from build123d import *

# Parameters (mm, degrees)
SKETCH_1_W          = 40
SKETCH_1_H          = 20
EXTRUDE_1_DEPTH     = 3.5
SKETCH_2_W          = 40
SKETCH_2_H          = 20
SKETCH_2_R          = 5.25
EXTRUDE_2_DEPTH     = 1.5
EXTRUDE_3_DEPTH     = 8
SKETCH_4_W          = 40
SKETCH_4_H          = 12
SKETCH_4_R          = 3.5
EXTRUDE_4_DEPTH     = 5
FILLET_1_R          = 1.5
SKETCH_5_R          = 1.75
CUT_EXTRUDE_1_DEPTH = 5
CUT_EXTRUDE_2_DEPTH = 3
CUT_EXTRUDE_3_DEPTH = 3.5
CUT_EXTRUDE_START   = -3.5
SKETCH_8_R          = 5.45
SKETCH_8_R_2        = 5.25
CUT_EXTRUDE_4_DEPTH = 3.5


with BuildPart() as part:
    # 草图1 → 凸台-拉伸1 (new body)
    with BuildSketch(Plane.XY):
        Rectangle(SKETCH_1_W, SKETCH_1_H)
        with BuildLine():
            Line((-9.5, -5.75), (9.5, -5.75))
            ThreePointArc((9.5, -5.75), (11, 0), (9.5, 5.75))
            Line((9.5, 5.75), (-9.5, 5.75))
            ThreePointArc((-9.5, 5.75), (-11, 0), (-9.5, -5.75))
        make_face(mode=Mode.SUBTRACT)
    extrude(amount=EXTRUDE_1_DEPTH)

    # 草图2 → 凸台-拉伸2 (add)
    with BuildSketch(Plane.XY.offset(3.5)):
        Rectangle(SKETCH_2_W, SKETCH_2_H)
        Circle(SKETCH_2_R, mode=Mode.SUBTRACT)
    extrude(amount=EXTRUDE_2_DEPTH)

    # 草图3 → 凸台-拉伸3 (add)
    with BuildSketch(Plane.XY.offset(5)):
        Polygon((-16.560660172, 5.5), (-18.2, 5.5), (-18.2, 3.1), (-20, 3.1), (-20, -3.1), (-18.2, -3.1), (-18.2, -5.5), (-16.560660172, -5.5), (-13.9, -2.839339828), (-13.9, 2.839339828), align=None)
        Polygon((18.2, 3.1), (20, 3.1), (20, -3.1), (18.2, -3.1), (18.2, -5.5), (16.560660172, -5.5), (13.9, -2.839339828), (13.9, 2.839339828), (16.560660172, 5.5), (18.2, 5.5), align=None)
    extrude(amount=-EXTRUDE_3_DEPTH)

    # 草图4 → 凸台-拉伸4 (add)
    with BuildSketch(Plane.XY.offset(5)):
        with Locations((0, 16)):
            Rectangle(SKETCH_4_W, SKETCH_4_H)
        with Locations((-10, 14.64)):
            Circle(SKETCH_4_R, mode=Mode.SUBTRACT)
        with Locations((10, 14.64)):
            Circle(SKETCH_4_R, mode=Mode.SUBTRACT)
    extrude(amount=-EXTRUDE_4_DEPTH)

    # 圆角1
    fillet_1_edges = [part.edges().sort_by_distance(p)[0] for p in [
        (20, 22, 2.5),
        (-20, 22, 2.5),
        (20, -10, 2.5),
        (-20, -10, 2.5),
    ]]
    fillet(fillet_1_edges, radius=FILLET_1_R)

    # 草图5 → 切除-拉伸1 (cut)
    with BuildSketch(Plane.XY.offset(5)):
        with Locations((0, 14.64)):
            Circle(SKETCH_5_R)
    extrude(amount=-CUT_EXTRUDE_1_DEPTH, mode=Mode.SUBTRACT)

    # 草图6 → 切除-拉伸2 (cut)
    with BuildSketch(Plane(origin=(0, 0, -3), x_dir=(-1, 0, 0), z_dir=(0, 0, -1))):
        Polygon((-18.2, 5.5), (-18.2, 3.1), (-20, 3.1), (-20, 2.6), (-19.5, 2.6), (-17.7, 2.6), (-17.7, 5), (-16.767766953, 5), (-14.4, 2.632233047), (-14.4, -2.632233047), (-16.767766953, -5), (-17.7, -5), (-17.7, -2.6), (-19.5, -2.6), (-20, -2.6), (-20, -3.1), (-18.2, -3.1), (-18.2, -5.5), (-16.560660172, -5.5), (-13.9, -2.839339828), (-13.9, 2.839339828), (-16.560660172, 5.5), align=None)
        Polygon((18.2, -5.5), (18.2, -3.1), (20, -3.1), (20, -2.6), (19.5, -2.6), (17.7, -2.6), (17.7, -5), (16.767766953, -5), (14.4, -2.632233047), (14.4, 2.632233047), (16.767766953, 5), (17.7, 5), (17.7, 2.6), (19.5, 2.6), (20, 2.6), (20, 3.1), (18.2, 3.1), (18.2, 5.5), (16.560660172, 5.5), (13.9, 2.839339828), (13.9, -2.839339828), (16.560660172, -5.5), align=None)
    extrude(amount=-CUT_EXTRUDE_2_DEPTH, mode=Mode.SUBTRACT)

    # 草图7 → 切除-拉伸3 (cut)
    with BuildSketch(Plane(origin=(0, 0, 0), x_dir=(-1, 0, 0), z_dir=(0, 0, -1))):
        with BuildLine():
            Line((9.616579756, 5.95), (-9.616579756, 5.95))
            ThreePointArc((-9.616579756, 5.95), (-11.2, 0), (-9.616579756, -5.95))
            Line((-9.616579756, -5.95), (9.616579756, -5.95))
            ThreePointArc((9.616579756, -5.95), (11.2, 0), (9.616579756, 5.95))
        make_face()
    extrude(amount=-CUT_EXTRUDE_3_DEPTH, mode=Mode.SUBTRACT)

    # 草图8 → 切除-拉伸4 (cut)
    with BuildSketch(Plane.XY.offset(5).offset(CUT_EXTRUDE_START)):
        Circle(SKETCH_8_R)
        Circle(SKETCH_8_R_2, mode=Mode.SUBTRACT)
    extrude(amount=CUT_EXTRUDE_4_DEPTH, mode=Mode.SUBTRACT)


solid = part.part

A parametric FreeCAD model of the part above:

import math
import FreeCAD as App
import Part
import Sketcher

V = App.Vector


def edges_at(feature, points):
    """Names of the edges that pass closest to the given points."""
    edges = feature.Shape.Edges
    near = lambda p: min(range(len(edges)), key=lambda i: edges[i].distToShape(Part.Vertex(*p))[0])
    return sorted({f"Edge{near(p) + 1}" for p in points})


def add_polygon(sketch, points):
    """Adds a closed chain of lines whose ends are joined by coincident constraints."""
    first, n = sketch.GeometryCount, len(points)
    for a, b in zip(points, points[1:] + points[:1]):
        sketch.addGeometry(Part.LineSegment(App.Vector(*a, 0), App.Vector(*b, 0)), False)
    for i in range(n):
        sketch.addConstraint(Sketcher.Constraint("Coincident", first + i, 2, first + (i + 1) % n, 1))

doc = App.newDocument("Part")
body = doc.addObject("PartDesign::Body", "Body")

# Sketch on XY plane
sketch1 = body.newObject("Sketcher::SketchObject", "Sketch")
sketch1.AttachmentSupport = (doc.getObject("XY_Plane"), [""])
sketch1.MapMode = "FlatFace"
add_polygon(sketch1, [(-20, 10), (-20, -10), (20, -10), (20, 10)])  # lines 0-3
sketch1.addGeometry(Part.LineSegment(V(10, -6, 0), V(-10, -6, 0)), False)  # 4
sketch1.addGeometry(Part.ArcOfCircle(Part.Circle(V(1, 0, 0), V(0, 0, 1), 12), math.radians(151), math.radians(209)), False)  # 5
sketch1.addGeometry(Part.LineSegment(V(-10, 6, 0), V(10, 6, 0)), False)  # 6
sketch1.addGeometry(Part.ArcOfCircle(Part.Circle(V(-1, 0, 0), V(0, 0, 1), 12), math.radians(-29), math.radians(29)), False)  # 7
sketch1.addConstraint(Sketcher.Constraint("Coincident", 4, 2, 5, 2))
sketch1.addConstraint(Sketcher.Constraint("Coincident", 5, 1, 6, 1))
sketch1.addConstraint(Sketcher.Constraint("Coincident", 6, 2, 7, 2))
sketch1.addConstraint(Sketcher.Constraint("Coincident", 7, 1, 4, 1))
sketch1.addConstraint(Sketcher.Constraint("Vertical", 0))
sketch1.addConstraint(Sketcher.Constraint("Horizontal", 1))
sketch1.addConstraint(Sketcher.Constraint("Vertical", 2))
sketch1.addConstraint(Sketcher.Constraint("Horizontal", 3))
sketch1.addConstraint(Sketcher.Constraint("Horizontal", 4))
sketch1.addConstraint(Sketcher.Constraint("Horizontal", 6))
sketch1.addConstraint(Sketcher.Constraint("Equal", 5, 7))
sketch1.addConstraint(Sketcher.Constraint("Symmetric", 5, 3, 7, 3, -1, 1))
sketch1.addConstraint(Sketcher.Constraint("Symmetric", 0, 2, 2, 2, -1, 1))
sketch1.addConstraint(Sketcher.Constraint("Symmetric", 4, 2, 5, 1, -1))
sketch1.addConstraint(Sketcher.Constraint("DistanceX", 1, 1, 1, 2, 40.0))
sketch1.addConstraint(Sketcher.Constraint("DistanceX", 4, 2, 4, 1, 19.0))
sketch1.addConstraint(Sketcher.Constraint("DistanceY", 0, 2, 0, 1, 20.0))
sketch1.addConstraint(Sketcher.Constraint("DistanceY", 4, 2, 5, 1, 11.5))
sketch1.addConstraint(Sketcher.Constraint("Radius", 5, 11.770833))
pad1 = body.newObject("PartDesign::Pad", "Pad")
pad1.Profile = sketch1
pad1.Length = 3.5

# Sketch on XY plane
sketch2 = body.newObject("Sketcher::SketchObject", "Sketch001")
sketch2.AttachmentSupport = (doc.getObject("XY_Plane"), [""])
sketch2.MapMode = "FlatFace"
sketch2.AttachmentOffset = App.Placement(V(0, 0, 3.5), App.Rotation())
add_polygon(sketch2, [(-20, 10), (-20, -10), (20, -10), (20, 10)])  # lines 0-3
sketch2.addGeometry(Part.Circle(V(0, 0, 0), V(0, 0, 1), 5), False)  # 4
sketch2.addConstraint(Sketcher.Constraint("Vertical", 0))
sketch2.addConstraint(Sketcher.Constraint("Horizontal", 1))
sketch2.addConstraint(Sketcher.Constraint("Vertical", 2))
sketch2.addConstraint(Sketcher.Constraint("Horizontal", 3))
sketch2.addConstraint(Sketcher.Constraint("Coincident", 4, 3, -1, 1))
sketch2.addConstraint(Sketcher.Constraint("Symmetric", 0, 2, 2, 2, -1, 1))
sketch2.addConstraint(Sketcher.Constraint("Diameter", 4, 10.5))
sketch2.addConstraint(Sketcher.Constraint("DistanceX", 1, 1, 1, 2, 40.0))
sketch2.addConstraint(Sketcher.Constraint("DistanceY", 0, 2, 0, 1, 20.0))
pad2 = body.newObject("PartDesign::Pad", "Pad001")
pad2.Profile = sketch2
pad2.Length = 1.5

# Sketch on XY plane
sketch3 = body.newObject("Sketcher::SketchObject", "Sketch002")
sketch3.AttachmentSupport = (doc.getObject("XY_Plane"), [""])
sketch3.MapMode = "FlatFace"
sketch3.AttachmentOffset = App.Placement(V(0, 0, 5), App.Rotation())
add_polygon(sketch3, [(-16.6, 5.5), (-18.2, 5.5), (-18.2, 3.1), (-20, 3.1), (-20, -3.1), (-18.2, -3.1), (-18.2, -5.5), (-16.6, -5.5), (-13.9, -2.8), (-13.9, 2.8)])  # lines 0-9
add_polygon(sketch3, [(20, 3.1), (18.2, 3.1), (18.2, 5.5), (16.6, 5.5), (13.9, 2.8), (13.9, -2.8), (16.6, -5.5), (18.2, -5.5), (18.2, -3.1), (20, -3.1)])  # lines 10-19
sketch3.addConstraint(Sketcher.Constraint("Horizontal", 0))
sketch3.addConstraint(Sketcher.Constraint("Vertical", 1))
sketch3.addConstraint(Sketcher.Constraint("Horizontal", 2))
sketch3.addConstraint(Sketcher.Constraint("Vertical", 3))
sketch3.addConstraint(Sketcher.Constraint("Horizontal", 4))
sketch3.addConstraint(Sketcher.Constraint("Vertical", 5))
sketch3.addConstraint(Sketcher.Constraint("Horizontal", 6))
sketch3.addConstraint(Sketcher.Constraint("Vertical", 8))
sketch3.addConstraint(Sketcher.Constraint("Horizontal", 10))
sketch3.addConstraint(Sketcher.Constraint("Vertical", 11))
sketch3.addConstraint(Sketcher.Constraint("Horizontal", 12))
sketch3.addConstraint(Sketcher.Constraint("Vertical", 14))
sketch3.addConstraint(Sketcher.Constraint("Horizontal", 16))
sketch3.addConstraint(Sketcher.Constraint("Vertical", 17))
sketch3.addConstraint(Sketcher.Constraint("Horizontal", 18))
sketch3.addConstraint(Sketcher.Constraint("Vertical", 19))
sketch3.addConstraint(Sketcher.Constraint("Symmetric", 4, 2, 10, 2, -1, 1))
sketch3.addConstraint(Sketcher.Constraint("Symmetric", 6, 2, 12, 2, -1, 1))
sketch3.addConstraint(Sketcher.Constraint("Symmetric", 7, 2, 13, 2, -1, 1))
sketch3.addConstraint(Sketcher.Constraint("Symmetric", 9, 2, 15, 2, -1, 1))
sketch3.addConstraint(Sketcher.Constraint("Symmetric", 1, 2, 17, 2, -1, 1))
sketch3.addConstraint(Sketcher.Constraint("Symmetric", 1, 2, 10, 2, -2))
sketch3.addConstraint(Sketcher.Constraint("Symmetric", 9, 2, 12, 2, -2))
sketch3.addConstraint(Sketcher.Constraint("Perpendicular", 7, 9))
sketch3.addConstraint(Sketcher.Constraint("Perpendicular", 13, 15))
sketch3.addConstraint(Sketcher.Constraint("Horizontal", 8, 2, 13, 2))
sketch3.addConstraint(Sketcher.Constraint("Equal", 4, 10))
sketch3.addConstraint(Sketcher.Constraint("DistanceX", 2, 2, 2, 1, 1.8))
sketch3.addConstraint(Sketcher.Constraint("DistanceY", 1, 2, 1, 1, 2.4))
sketch3.addConstraint(Sketcher.Constraint("DistanceY", 3, 2, 3, 1, 6.2))
sketch3.addConstraint(Sketcher.Constraint("DistanceX", 2, 2, -1, 1, 20.0))
sketch3.addConstraint(Sketcher.Constraint("DistanceX", 7, 2, -1, 1, 13.9))
sketch3.addConstraint(Sketcher.Constraint("DistanceX", 0, 2, 0, 1, 1.63934))
pad3 = body.newObject("PartDesign::Pad", "Pad002")
pad3.Profile = sketch3
pad3.Length = 8
pad3.Reversed = True

# Sketch on XY plane
sketch4 = body.newObject("Sketcher::SketchObject", "Sketch003")
sketch4.AttachmentSupport = (doc.getObject("XY_Plane"), [""])
sketch4.MapMode = "FlatFace"
sketch4.AttachmentOffset = App.Placement(V(0, 0, 5), App.Rotation())
add_polygon(sketch4, [(-20, 22), (-20, 10), (20, 10), (20, 22)])  # lines 0-3
sketch4.addGeometry(Part.Circle(V(-10, 14.6, 0), V(0, 0, 1), 3.5), False)  # 4
sketch4.addGeometry(Part.Circle(V(10, 14.6, 0), V(0, 0, 1), 3.5), False)  # 5
sketch4.addConstraint(Sketcher.Constraint("Vertical", 0))
sketch4.addConstraint(Sketcher.Constraint("Horizontal", 1))
sketch4.addConstraint(Sketcher.Constraint("Vertical", 2))
sketch4.addConstraint(Sketcher.Constraint("Horizontal", 3))
sketch4.addConstraint(Sketcher.Constraint("Equal", 4, 5))
sketch4.addConstraint(Sketcher.Constraint("Symmetric", 4, 3, 5, 3, -2))
sketch4.addConstraint(Sketcher.Constraint("Diameter", 4, 7.0))
sketch4.addConstraint(Sketcher.Constraint("DistanceX", 1, 1, 1, 2, 40.0))
sketch4.addConstraint(Sketcher.Constraint("DistanceY", 0, 2, 0, 1, 12.0))
sketch4.addConstraint(Sketcher.Constraint("DistanceX", 4, 3, -1, 1, 10.0))
sketch4.addConstraint(Sketcher.Constraint("DistanceX", 0, 2, -1, 1, 20.0))
sketch4.addConstraint(Sketcher.Constraint("DistanceY", -1, 1, 0, 2, 10.0))
sketch4.addConstraint(Sketcher.Constraint("DistanceY", -1, 1, 4, 3, 14.64))
pad4 = body.newObject("PartDesign::Pad", "Pad003")
pad4.Profile = sketch4
pad4.Length = 5
pad4.Reversed = True
doc.recompute()

fillet = body.newObject("PartDesign::Fillet", "Fillet")
fillet.Base = (pad4, edges_at(pad4, [
    (20, 22, 2.5),
    (-20, 22, 2.5),
    (20, -10, 2.5),
    (-20, -10, 2.5),
]))
fillet.Radius = 1.5

# Sketch on XY plane
sketch5 = body.newObject("Sketcher::SketchObject", "Sketch004")
sketch5.AttachmentSupport = (doc.getObject("XY_Plane"), [""])
sketch5.MapMode = "FlatFace"
sketch5.AttachmentOffset = App.Placement(V(0, 0, 5), App.Rotation())
sketch5.addGeometry(Part.Circle(V(0, 14.6, 0), V(0, 0, 1), 1.8), False)
sketch5.addConstraint(Sketcher.Constraint("PointOnObject", 0, 3, -2))
sketch5.addConstraint(Sketcher.Constraint("Diameter", 0, 3.5))
sketch5.addConstraint(Sketcher.Constraint("DistanceY", -1, 1, 0, 3, 14.64))
pocket1 = body.newObject("PartDesign::Pocket", "Pocket")
pocket1.Profile = sketch5
pocket1.Length = 5

# Sketch on XY plane
sketch6 = body.newObject("Sketcher::SketchObject", "Sketch005")
sketch6.AttachmentSupport = (doc.getObject("XY_Plane"), [""])
sketch6.MapMode = "FlatFace"
sketch6.AttachmentOffset = App.Placement(V(0, 0, -3), App.Rotation())
add_polygon(sketch6, [(18.2, 5.5), (18.2, 3.1), (20, 3.1), (20, 2.6), (17.7, 2.6), (17.7, 5), (16.8, 5), (14.4, 2.6), (14.4, -2.6), (16.8, -5), (17.7, -5), (17.7, -2.6), (20, -2.6), (20, -3.1), (18.2, -3.1), (18.2, -5.5), (16.6, -5.5), (13.9, -2.8), (13.9, 2.8), (16.6, 5.5)])  # lines 0-19
add_polygon(sketch6, [(-18.2, -5.5), (-18.2, -3.1), (-20, -3.1), (-20, -2.6), (-17.7, -2.6), (-17.7, -5), (-16.8, -5), (-14.4, -2.6), (-14.4, 2.6), (-16.8, 5), (-17.7, 5), (-17.7, 2.6), (-20, 2.6), (-20, 3.1), (-18.2, 3.1), (-18.2, 5.5), (-16.6, 5.5), (-13.9, 2.8), (-13.9, -2.8), (-16.6, -5.5)])  # lines 20-39
sketch6.addConstraint(Sketcher.Constraint("Vertical", 0))
sketch6.addConstraint(Sketcher.Constraint("Horizontal", 1))
sketch6.addConstraint(Sketcher.Constraint("Vertical", 2))
sketch6.addConstraint(Sketcher.Constraint("Horizontal", 3))
sketch6.addConstraint(Sketcher.Constraint("Vertical", 4))
sketch6.addConstraint(Sketcher.Constraint("Horizontal", 5))
sketch6.addConstraint(Sketcher.Constraint("Vertical", 7))
sketch6.addConstraint(Sketcher.Constraint("Horizontal", 9))
sketch6.addConstraint(Sketcher.Constraint("Vertical", 10))
sketch6.addConstraint(Sketcher.Constraint("Horizontal", 11))
sketch6.addConstraint(Sketcher.Constraint("Vertical", 12))
sketch6.addConstraint(Sketcher.Constraint("Horizontal", 13))
sketch6.addConstraint(Sketcher.Constraint("Vertical", 14))
sketch6.addConstraint(Sketcher.Constraint("Horizontal", 15))
sketch6.addConstraint(Sketcher.Constraint("Vertical", 17))
sketch6.addConstraint(Sketcher.Constraint("Horizontal", 19))
sketch6.addConstraint(Sketcher.Constraint("Vertical", 20))
sketch6.addConstraint(Sketcher.Constraint("Horizontal", 21))
sketch6.addConstraint(Sketcher.Constraint("Vertical", 22))
sketch6.addConstraint(Sketcher.Constraint("Horizontal", 23))
sketch6.addConstraint(Sketcher.Constraint("Vertical", 24))
sketch6.addConstraint(Sketcher.Constraint("Horizontal", 25))
sketch6.addConstraint(Sketcher.Constraint("Vertical", 27))
sketch6.addConstraint(Sketcher.Constraint("Horizontal", 29))
sketch6.addConstraint(Sketcher.Constraint("Vertical", 30))
sketch6.addConstraint(Sketcher.Constraint("Horizontal", 31))
sketch6.addConstraint(Sketcher.Constraint("Vertical", 32))
sketch6.addConstraint(Sketcher.Constraint("Horizontal", 33))
sketch6.addConstraint(Sketcher.Constraint("Vertical", 34))
sketch6.addConstraint(Sketcher.Constraint("Horizontal", 35))
sketch6.addConstraint(Sketcher.Constraint("Vertical", 37))
sketch6.addConstraint(Sketcher.Constraint("Horizontal", 39))
sketch6.addConstraint(Sketcher.Constraint("Symmetric", 0, 2, 20, 2, -1, 1))
sketch6.addConstraint(Sketcher.Constraint("Symmetric", 2, 2, 22, 2, -1, 1))
sketch6.addConstraint(Sketcher.Constraint("Symmetric", 4, 2, 24, 2, -1, 1))
sketch6.addConstraint(Sketcher.Constraint("Symmetric", 6, 2, 26, 2, -1, 1))
sketch6.addConstraint(Sketcher.Constraint("Symmetric", 8, 2, 28, 2, -1, 1))
sketch6.addConstraint(Sketcher.Constraint("Symmetric", 10, 2, 30, 2, -1, 1))
sketch6.addConstraint(Sketcher.Constraint("Symmetric", 12, 2, 32, 2, -1, 1))
sketch6.addConstraint(Sketcher.Constraint("Symmetric", 14, 2, 34, 2, -1, 1))
sketch6.addConstraint(Sketcher.Constraint("Symmetric", 16, 2, 36, 2, -1, 1))
sketch6.addConstraint(Sketcher.Constraint("Symmetric", 18, 2, 38, 2, -1, 1))
sketch6.addConstraint(Sketcher.Constraint("Symmetric", 13, 2, 20, 2, -2))
sketch6.addConstraint(Sketcher.Constraint("Symmetric", 11, 2, 22, 2, -2))
sketch6.addConstraint(Sketcher.Constraint("Symmetric", 9, 2, 24, 2, -2))
sketch6.addConstraint(Sketcher.Constraint("Symmetric", 18, 2, 35, 2, -2))
sketch6.addConstraint(Sketcher.Constraint("Perpendicular", 6, 8))
sketch6.addConstraint(Sketcher.Constraint("Parallel", 8, 16))
sketch6.addConstraint(Sketcher.Constraint("Perpendicular", 16, 18))
sketch6.addConstraint(Sketcher.Constraint("Parallel", 18, 26))
sketch6.addConstraint(Sketcher.Constraint("Perpendicular", 26, 28))
sketch6.addConstraint(Sketcher.Constraint("Parallel", 28, 36))
sketch6.addConstraint(Sketcher.Constraint("Perpendicular", 36, 38))
sketch6.addConstraint(Sketcher.Constraint("Horizontal", 7, 2, 26, 2))
sketch6.addConstraint(Sketcher.Constraint("Horizontal", 17, 2, 36, 2))
sketch6.addConstraint(Sketcher.Constraint("Equal", 0, 4))
sketch6.addConstraint(Sketcher.Constraint("DistanceX", 1, 1, 1, 2, 1.8))
sketch6.addConstraint(Sketcher.Constraint("DistanceX", 3, 2, 3, 1, 2.3))
sketch6.addConstraint(Sketcher.Constraint("DistanceY", 0, 2, 0, 1, 2.4))
sketch6.addConstraint(Sketcher.Constraint("DistanceY", 2, 2, 2, 1, 0.5))
sketch6.addConstraint(Sketcher.Constraint("DistanceX", -1, 1, 1, 2, 20.0))
sketch6.addConstraint(Sketcher.Constraint("DistanceY", -1, 1, 4, 2, 5.0))
sketch6.addConstraint(Sketcher.Constraint("DistanceX", -1, 1, 6, 2, 14.4))
sketch6.addConstraint(Sketcher.Constraint("DistanceX", -1, 1, 16, 2, 13.9))
sketch6.addConstraint(Sketcher.Constraint("DistanceX", 15, 2, 15, 1, 1.63934))
sketch6.addConstraint(Sketcher.Constraint("Distance", 6, 3.348528))
pocket2 = body.newObject("PartDesign::Pocket", "Pocket001")
pocket2.Profile = sketch6
pocket2.Length = 3
pocket2.Reversed = True

# Sketch on XY plane
sketch7 = body.newObject("Sketcher::SketchObject", "Sketch006")
sketch7.AttachmentSupport = (doc.getObject("XY_Plane"), [""])
sketch7.MapMode = "FlatFace"
sketch7.addGeometry(Part.LineSegment(V(-10, 6, 0), V(10, 6, 0)), False)
sketch7.addGeometry(Part.ArcOfCircle(Part.Circle(V(-1, 0, 0), V(0, 0, 1), 12), math.radians(-30), math.radians(30)), False)
sketch7.addGeometry(Part.LineSegment(V(10, -6, 0), V(-10, -6, 0)), False)
sketch7.addGeometry(Part.ArcOfCircle(Part.Circle(V(1, 0, 0), V(0, 0, 1), 12), math.radians(150), math.radians(210)), False)
sketch7.addConstraint(Sketcher.Constraint("Coincident", 0, 2, 1, 2))
sketch7.addConstraint(Sketcher.Constraint("Coincident", 1, 1, 2, 1))
sketch7.addConstraint(Sketcher.Constraint("Coincident", 2, 2, 3, 2))
sketch7.addConstraint(Sketcher.Constraint("Coincident", 3, 1, 0, 1))
sketch7.addConstraint(Sketcher.Constraint("Horizontal", 0))
sketch7.addConstraint(Sketcher.Constraint("Horizontal", 2))
sketch7.addConstraint(Sketcher.Constraint("Equal", 1, 3))
sketch7.addConstraint(Sketcher.Constraint("Symmetric", 1, 3, 3, 3, -1, 1))
sketch7.addConstraint(Sketcher.Constraint("Symmetric", 0, 2, 1, 1, -1))
sketch7.addConstraint(Sketcher.Constraint("DistanceY", 1, 1, 0, 2, 11.9))
sketch7.addConstraint(Sketcher.Constraint("Radius", 1, 11.970833))
sketch7.addConstraint(Sketcher.Constraint("DistanceX", 0, 1, 0, 2, 19.23316))
pocket3 = body.newObject("PartDesign::Pocket", "Pocket002")
pocket3.Profile = sketch7
pocket3.Length = 3.5
pocket3.Reversed = True

# Sketch on XY plane
sketch8 = body.newObject("Sketcher::SketchObject", "Sketch007")
sketch8.AttachmentSupport = (doc.getObject("XY_Plane"), [""])
sketch8.MapMode = "FlatFace"
sketch8.AttachmentOffset = App.Placement(V(0, 0, 1.5), App.Rotation())
sketch8.addGeometry(Part.Circle(V(0, 0, 0), V(0, 0, 1), 5), False)
sketch8.addGeometry(Part.Circle(V(0, 0, 0), V(0, 0, 1), 5), False)
sketch8.addConstraint(Sketcher.Constraint("Coincident", 0, 3, -1, 1))
sketch8.addConstraint(Sketcher.Constraint("Coincident", 1, 3, -1, 1))
sketch8.addConstraint(Sketcher.Constraint("Diameter", 0, 10.9))
sketch8.addConstraint(Sketcher.Constraint("Diameter", 1, 10.5))
pocket4 = body.newObject("PartDesign::Pocket", "Pocket003")
pocket4.Profile = sketch8
pocket4.Length = 3.5
pocket4.Reversed = True

doc.recompute()
